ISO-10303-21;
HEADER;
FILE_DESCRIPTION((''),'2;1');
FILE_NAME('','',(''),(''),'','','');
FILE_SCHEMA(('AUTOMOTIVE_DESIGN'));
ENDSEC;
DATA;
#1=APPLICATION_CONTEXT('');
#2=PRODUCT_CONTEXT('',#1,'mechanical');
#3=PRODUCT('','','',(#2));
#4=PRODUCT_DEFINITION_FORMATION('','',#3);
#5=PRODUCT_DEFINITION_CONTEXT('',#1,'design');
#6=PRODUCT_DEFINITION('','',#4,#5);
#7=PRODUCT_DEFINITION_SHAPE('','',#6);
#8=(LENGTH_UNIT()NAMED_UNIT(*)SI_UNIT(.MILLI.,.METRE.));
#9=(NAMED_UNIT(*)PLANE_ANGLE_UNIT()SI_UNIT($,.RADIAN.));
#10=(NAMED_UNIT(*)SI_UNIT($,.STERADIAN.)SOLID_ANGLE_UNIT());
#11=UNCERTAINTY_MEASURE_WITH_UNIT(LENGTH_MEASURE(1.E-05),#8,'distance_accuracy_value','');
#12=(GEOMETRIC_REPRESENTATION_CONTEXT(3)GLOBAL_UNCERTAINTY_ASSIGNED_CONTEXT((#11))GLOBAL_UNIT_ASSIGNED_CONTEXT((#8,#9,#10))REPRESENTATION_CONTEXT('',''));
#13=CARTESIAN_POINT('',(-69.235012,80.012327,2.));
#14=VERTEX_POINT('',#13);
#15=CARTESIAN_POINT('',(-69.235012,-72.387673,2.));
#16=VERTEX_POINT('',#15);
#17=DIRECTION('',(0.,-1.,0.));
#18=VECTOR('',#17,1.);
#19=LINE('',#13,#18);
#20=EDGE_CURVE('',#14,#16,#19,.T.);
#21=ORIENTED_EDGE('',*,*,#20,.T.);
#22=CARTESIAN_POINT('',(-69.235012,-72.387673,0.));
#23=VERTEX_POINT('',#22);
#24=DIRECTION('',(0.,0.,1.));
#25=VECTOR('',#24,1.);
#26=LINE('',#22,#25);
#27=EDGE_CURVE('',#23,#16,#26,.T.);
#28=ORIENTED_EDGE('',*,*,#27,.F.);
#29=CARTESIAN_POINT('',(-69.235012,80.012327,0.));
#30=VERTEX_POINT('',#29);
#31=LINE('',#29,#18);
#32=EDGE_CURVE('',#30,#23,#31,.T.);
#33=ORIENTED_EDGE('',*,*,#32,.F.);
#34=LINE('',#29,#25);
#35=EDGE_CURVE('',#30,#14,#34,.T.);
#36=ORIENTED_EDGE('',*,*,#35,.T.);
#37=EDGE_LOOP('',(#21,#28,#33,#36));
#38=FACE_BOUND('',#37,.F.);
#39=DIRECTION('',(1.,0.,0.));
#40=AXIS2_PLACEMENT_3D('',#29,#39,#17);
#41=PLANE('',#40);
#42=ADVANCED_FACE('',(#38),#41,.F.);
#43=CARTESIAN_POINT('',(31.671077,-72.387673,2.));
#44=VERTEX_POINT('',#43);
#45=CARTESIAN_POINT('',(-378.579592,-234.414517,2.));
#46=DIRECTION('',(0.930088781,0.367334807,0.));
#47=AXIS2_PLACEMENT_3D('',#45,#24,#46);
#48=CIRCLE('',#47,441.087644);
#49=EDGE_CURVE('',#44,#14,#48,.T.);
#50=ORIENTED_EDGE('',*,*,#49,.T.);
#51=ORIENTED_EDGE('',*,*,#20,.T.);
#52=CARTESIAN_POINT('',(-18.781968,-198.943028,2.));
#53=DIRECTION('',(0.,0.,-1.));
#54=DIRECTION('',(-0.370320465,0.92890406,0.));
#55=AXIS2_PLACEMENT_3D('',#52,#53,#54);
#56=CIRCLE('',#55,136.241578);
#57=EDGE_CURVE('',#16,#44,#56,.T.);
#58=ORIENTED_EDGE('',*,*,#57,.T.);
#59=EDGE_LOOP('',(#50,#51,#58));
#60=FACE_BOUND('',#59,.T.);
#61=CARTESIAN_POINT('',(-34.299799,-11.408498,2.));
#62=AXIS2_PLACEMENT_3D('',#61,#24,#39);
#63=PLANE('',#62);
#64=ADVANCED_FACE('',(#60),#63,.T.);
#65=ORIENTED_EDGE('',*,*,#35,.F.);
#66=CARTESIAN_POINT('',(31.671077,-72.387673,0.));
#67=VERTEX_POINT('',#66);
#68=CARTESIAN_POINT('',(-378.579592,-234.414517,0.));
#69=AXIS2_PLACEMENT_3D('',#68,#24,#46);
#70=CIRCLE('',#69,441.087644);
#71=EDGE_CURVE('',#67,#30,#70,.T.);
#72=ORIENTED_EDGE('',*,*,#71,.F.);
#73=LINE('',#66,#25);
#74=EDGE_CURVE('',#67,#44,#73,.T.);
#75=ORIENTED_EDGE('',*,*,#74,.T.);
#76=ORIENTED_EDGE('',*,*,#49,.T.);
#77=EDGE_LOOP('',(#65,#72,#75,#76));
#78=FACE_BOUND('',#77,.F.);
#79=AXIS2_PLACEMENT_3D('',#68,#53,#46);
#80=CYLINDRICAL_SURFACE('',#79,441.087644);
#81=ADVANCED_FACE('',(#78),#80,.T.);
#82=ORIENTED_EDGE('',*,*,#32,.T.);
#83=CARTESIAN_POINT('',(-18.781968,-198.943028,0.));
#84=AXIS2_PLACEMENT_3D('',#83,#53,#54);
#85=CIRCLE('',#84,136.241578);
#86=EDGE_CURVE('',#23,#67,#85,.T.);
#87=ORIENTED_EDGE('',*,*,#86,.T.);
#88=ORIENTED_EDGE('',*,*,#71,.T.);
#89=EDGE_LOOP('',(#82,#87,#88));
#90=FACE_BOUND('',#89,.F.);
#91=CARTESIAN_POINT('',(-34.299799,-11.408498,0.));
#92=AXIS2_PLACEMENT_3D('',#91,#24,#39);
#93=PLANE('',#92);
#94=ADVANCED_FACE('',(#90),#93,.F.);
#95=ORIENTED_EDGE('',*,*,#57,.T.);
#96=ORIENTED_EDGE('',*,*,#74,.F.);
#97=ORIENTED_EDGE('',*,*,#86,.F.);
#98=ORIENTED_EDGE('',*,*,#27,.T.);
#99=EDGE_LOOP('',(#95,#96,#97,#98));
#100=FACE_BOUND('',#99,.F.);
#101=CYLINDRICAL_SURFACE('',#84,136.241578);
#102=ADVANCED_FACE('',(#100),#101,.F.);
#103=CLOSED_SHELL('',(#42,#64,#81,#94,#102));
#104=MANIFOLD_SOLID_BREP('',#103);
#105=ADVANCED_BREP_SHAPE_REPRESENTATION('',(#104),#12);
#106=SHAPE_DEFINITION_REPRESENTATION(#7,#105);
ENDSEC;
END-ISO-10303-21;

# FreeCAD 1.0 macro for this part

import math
import FreeCAD as App
import Part
import Sketcher
from FreeCAD import Vector
Q = App.Units.Quantity

doc = App.newDocument("Part")
params = doc.addObject("Spreadsheet::Sheet", "Params")
for row, (alias, value) in enumerate([
    ("sketch1_height", "152.4 mm"),
    ("pad1_length", "2 mm"),
], start=1):
    params.set(f"A{row}", alias)
    params.set(f"B{row}", "=" + value)
    params.setAlias(f"B{row}", alias)

body = doc.addObject("PartDesign::Body", "Body")

# Sketch on XY plane
sketch1 = doc.addObject("Sketcher::SketchObject", "Sketch")
body.addObject(sketch1)
sketch1.AttachmentSupport = (doc.XY_Plane, [""])
sketch1.MapMode = "FlatFace"
sketch1.addGeometry(Part.ArcOfCircle(Part.Circle(Vector(-379, -234, 0), Vector(0, 0, 1), 441), math.radians(22), math.radians(45)), False)
sketch1.addGeometry(Part.LineSegment(Vector(-69, 80, 0), Vector(-69, -72, 0)), False)
sketch1.addGeometry(Part.ArcOfCircle(Part.Circle(Vector(-19, -199, 0), Vector(0, 0, 1), 136), math.radians(68), math.radians(112)), False)
sketch1.addConstraint(Sketcher.Constraint("Coincident", 0, 2, 1, 1))
sketch1.addConstraint(Sketcher.Constraint("Coincident", 1, 2, 2, 2))
sketch1.addConstraint(Sketcher.Constraint("Coincident", 2, 1, 0, 1))
sketch1.addConstraint(Sketcher.Constraint("Vertical", 1))
sketch1.addConstraint(Sketcher.Constraint("Horizontal", 1, 2, 2, 1))
sketch1.addConstraint(Sketcher.Constraint("DistanceY", 1, 2, 1, 1, Q("152.4 mm")))
sketch1.addConstraint(Sketcher.Constraint("Radius", 2, Q("136.241578 mm")))
sketch1.addConstraint(Sketcher.Constraint("Radius", 0, Q("441.087644 mm")))
sketch1.addConstraint(Sketcher.Constraint("DistanceX", 0, 3, -1, 1, Q("378.579592 mm")))
sketch1.addConstraint(Sketcher.Constraint("DistanceY", 2, 3, -1, 1, Q("198.943028 mm")))
sketch1.addConstraint(Sketcher.Constraint("DistanceX", 1, 2, -1, 1, Q("69.235012 mm")))
sketch1.setExpression("Constraints[5]", "Params.sketch1_height")
pad1 = doc.addObject("PartDesign::Pad", "Pad")
body.addObject(pad1)
pad1.Profile = sketch1
pad1.setExpression("Length", "Params.pad1_length")

doc.recompute()
